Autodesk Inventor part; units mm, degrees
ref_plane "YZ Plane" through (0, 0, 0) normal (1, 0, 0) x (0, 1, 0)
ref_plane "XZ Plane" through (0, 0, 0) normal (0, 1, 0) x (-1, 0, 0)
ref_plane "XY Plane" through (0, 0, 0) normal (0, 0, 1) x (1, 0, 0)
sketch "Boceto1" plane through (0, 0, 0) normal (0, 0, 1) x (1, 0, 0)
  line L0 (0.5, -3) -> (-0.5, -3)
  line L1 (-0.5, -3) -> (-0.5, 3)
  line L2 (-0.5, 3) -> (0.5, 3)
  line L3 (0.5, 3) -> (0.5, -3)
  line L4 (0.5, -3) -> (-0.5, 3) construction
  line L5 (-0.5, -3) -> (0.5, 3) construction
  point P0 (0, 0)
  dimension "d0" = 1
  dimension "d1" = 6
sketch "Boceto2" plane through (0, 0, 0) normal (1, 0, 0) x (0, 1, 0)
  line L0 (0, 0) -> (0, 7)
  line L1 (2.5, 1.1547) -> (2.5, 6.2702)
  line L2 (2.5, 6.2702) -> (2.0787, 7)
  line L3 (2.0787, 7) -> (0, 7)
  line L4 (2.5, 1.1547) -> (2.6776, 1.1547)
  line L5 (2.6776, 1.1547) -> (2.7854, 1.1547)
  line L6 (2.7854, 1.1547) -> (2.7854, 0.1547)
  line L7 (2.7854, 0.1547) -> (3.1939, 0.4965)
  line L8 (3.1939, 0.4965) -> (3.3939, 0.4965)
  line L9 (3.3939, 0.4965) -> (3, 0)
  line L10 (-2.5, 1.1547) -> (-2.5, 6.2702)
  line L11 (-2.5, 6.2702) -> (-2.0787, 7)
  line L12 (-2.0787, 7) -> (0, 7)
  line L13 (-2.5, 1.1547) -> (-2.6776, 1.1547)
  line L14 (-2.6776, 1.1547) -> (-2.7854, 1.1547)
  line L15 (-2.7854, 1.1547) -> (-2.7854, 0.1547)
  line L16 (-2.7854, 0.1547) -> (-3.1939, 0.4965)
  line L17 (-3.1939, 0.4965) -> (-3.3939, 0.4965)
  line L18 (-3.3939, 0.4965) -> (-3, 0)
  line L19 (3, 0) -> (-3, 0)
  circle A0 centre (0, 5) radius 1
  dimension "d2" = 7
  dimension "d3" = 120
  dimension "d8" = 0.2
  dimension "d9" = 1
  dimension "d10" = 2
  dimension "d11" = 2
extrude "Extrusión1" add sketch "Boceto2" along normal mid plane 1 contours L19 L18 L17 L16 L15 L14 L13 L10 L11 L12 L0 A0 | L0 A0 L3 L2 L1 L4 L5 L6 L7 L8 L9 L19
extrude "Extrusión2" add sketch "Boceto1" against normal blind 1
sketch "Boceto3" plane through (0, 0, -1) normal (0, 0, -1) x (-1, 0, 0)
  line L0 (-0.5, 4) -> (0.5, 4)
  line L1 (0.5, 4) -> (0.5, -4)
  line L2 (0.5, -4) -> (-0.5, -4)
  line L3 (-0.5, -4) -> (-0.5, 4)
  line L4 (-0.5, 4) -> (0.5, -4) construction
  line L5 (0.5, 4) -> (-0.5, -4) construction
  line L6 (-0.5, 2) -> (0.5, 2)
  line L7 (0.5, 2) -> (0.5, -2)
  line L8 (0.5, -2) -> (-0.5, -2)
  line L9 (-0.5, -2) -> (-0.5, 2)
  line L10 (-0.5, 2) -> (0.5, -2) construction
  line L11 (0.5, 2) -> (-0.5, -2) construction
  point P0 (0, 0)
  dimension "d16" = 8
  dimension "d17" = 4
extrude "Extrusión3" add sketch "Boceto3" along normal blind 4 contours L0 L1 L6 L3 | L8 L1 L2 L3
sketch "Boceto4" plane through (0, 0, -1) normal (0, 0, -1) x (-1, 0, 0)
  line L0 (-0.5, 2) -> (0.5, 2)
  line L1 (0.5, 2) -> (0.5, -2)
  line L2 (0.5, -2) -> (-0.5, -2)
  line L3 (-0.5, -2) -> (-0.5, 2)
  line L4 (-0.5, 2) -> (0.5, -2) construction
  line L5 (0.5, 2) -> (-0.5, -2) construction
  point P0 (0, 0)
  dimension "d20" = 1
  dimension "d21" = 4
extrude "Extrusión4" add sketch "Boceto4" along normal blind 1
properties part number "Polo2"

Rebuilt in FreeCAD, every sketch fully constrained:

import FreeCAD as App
import Part
import Sketcher
from FreeCAD import Vector
Q = App.Units.Quantity


def add_polygon(sketch, points):
    """Adds a closed chain of lines whose ends are joined by coincident constraints."""
    first, n = sketch.GeometryCount, len(points)
    for a, b in zip(points, points[1:] + points[:1]):
        sketch.addGeometry(Part.LineSegment(App.Vector(*a, 0), App.Vector(*b, 0)), False)
    for i in range(n):
        sketch.addConstraint(Sketcher.Constraint("Coincident", first + i, 2, first + (i + 1) % n, 1))

doc = App.newDocument("Part")
body = doc.addObject("PartDesign::Body", "Body")

sketch1 = body.newObject("Sketcher::SketchObject", "Sketch")
sketch1.AttachmentSupport = (doc.getObject("YZ_Plane"), [""])
sketch1.MapMode = "FlatFace"
add_polygon(sketch1, [(-3, 0), (3, 0), (3.39, 0.5), (3.19, 0.5), (2.79, 0.15), (2.79, 1.15), (2.5, 1.15), (2.5, 6.27), (2.08, 7), (-2.08, 7), (-2.5, 6.27), (-2.5, 1.15), (-2.79, 1.15), (-2.79, 0.15), (-3.19, 0.5), (-3.39, 0.5)])
sketch1.addGeometry(Part.Circle(Vector(0, 5, 0), Vector(0, 0, 1), 1), False)
sketch1.addConstraint(Sketcher.Constraint("Horizontal", 0))
sketch1.addConstraint(Sketcher.Constraint("Horizontal", 2))
sketch1.addConstraint(Sketcher.Constraint("Vertical", 4))
sketch1.addConstraint(Sketcher.Constraint("Horizontal", 5))
sketch1.addConstraint(Sketcher.Constraint("Vertical", 6))
sketch1.addConstraint(Sketcher.Constraint("Horizontal", 8))
sketch1.addConstraint(Sketcher.Constraint("Vertical", 10))
sketch1.addConstraint(Sketcher.Constraint("Horizontal", 11))
sketch1.addConstraint(Sketcher.Constraint("Vertical", 12))
sketch1.addConstraint(Sketcher.Constraint("Horizontal", 14))
sketch1.addConstraint(Sketcher.Constraint("Symmetric", 0, 2, 15, 2, -1, 1))
sketch1.addConstraint(Sketcher.Constraint("Symmetric", 6, 2, 9, 2, -2))
sketch1.addConstraint(Sketcher.Constraint("Symmetric", 4, 2, 11, 2, -2))
sketch1.addConstraint(Sketcher.Constraint("Symmetric", 2, 2, 13, 2, -2))
sketch1.addConstraint(Sketcher.Constraint("PointOnObject", 16, 3, -2))
sketch1.addConstraint(Sketcher.Constraint("Horizontal", 3, 2, 12, 2))
sketch1.addConstraint(Sketcher.Constraint("Equal", 2, 14))
sketch1.addConstraint(Sketcher.Constraint("Equal", 7, 9))
sketch1.addConstraint(Sketcher.Constraint("Diameter", 16, 2.0))
sketch1.addConstraint(Sketcher.Constraint("DistanceY", 4, 1, 4, 2, 1.0))
sketch1.addConstraint(Sketcher.Constraint("DistanceX", 2, 2, 2, 1, 0.2))
sketch1.addConstraint(Sketcher.Constraint("DistanceY", -1, 1, 7, 2, 7.0))
sketch1.addConstraint(Sketcher.Constraint("DistanceY", 16, 3, 7, 2, 2.0))
sketch1.addConstraint(Sketcher.Constraint("DistanceX", 0, 1, 0, 2, 6.0))
sketch1.addConstraint(Sketcher.Constraint("DistanceX", 9, 2, 6, 2, 5.0))
sketch1.addConstraint(Sketcher.Constraint("Angle", 3, Q("-140.08 deg")))
sketch1.addConstraint(Sketcher.Constraint("DistanceX", 5, 2, 5, 1, 0.2854))
sketch1.addConstraint(Sketcher.Constraint("DistanceX", 8, 2, 8, 1, 4.1574))
sketch1.addConstraint(Sketcher.Constraint("DistanceY", 6, 1, 6, 2, 5.1155))
sketch1.addConstraint(Sketcher.Constraint("DistanceX", -1, 1, 1, 2, 3.394))
sketch1.addConstraint(Sketcher.Constraint("Distance", 1, 0.6338))
pad1 = body.newObject("PartDesign::Pad", "Pad")
pad1.Profile = sketch1
pad1.Length = 1
pad1.Midplane = True

sketch2 = body.newObject("Sketcher::SketchObject", "Sketch001")
sketch2.AttachmentSupport = (doc.getObject("XY_Plane"), [""])
sketch2.MapMode = "FlatFace"
add_polygon(sketch2, [(-0.5, -3), (0.5, -3), (0.5, 3), (-0.5, 3)])
sketch2.addConstraint(Sketcher.Constraint("Horizontal", 0))
sketch2.addConstraint(Sketcher.Constraint("Vertical", 1))
sketch2.addConstraint(Sketcher.Constraint("Horizontal", 2))
sketch2.addConstraint(Sketcher.Constraint("Vertical", 3))
sketch2.addConstraint(Sketcher.Constraint("Symmetric", 0, 2, 2, 2, -1, 1))
sketch2.addConstraint(Sketcher.Constraint("DistanceX", 0, 1, 0, 2, 1.0))
sketch2.addConstraint(Sketcher.Constraint("DistanceY", 1, 1, 1, 2, 6.0))
pad2 = body.newObject("PartDesign::Pad", "Pad001")
pad2.Profile = sketch2
pad2.Length = 1
pad2.Reversed = True

sketch3 = body.newObject("Sketcher::SketchObject", "Sketch002")
sketch3.AttachmentSupport = (doc.getObject("XY_Plane"), [""])
sketch3.MapMode = "FlatFace"
sketch3.AttachmentOffset = App.Placement(Vector(0, 0, -1), App.Rotation())
add_polygon(sketch3, [(-0.5, 4), (0.5, 4), (0.5, 2), (-0.5, 2)])
add_polygon(sketch3, [(-0.5, -2), (0.5, -2), (0.5, -4), (-0.5, -4)])
sketch3.addConstraint(Sketcher.Constraint("Horizontal", 0))
sketch3.addConstraint(Sketcher.Constraint("Vertical", 1))
sketch3.addConstraint(Sketcher.Constraint("Horizontal", 2))
sketch3.addConstraint(Sketcher.Constraint("Vertical", 3))
sketch3.addConstraint(Sketcher.Constraint("Horizontal", 4))
sketch3.addConstraint(Sketcher.Constraint("Vertical", 5))
sketch3.addConstraint(Sketcher.Constraint("Horizontal", 6))
sketch3.addConstraint(Sketcher.Constraint("Vertical", 7))
sketch3.addConstraint(Sketcher.Constraint("Symmetric", 2, 2, 4, 2, -1, 1))
sketch3.addConstraint(Sketcher.Constraint("Symmetric", 0, 2, 6, 2, -1, 1))
sketch3.addConstraint(Sketcher.Constraint("Vertical", 1, 2, 4, 2))
sketch3.addConstraint(Sketcher.Constraint("DistanceY", -1, 1, 0, 2, 4.0))
sketch3.addConstraint(Sketcher.Constraint("DistanceY", 4, 2, 1, 2, 4.0))
sketch3.addConstraint(Sketcher.Constraint("DistanceX", 0, 1, 0, 2, 1.0))
pad3 = body.newObject("PartDesign::Pad", "Pad002")
pad3.Profile = sketch3
pad3.Length = 4
pad3.Reversed = True

sketch4 = body.newObject("Sketcher::SketchObject", "Sketch003")
sketch4.AttachmentSupport = (doc.getObject("XY_Plane"), [""])
sketch4.MapMode = "FlatFace"
sketch4.AttachmentOffset = App.Placement(Vector(0, 0, -1), App.Rotation())
add_polygon(sketch4, [(-0.5, 2), (0.5, 2), (0.5, -2), (-0.5, -2)])
sketch4.addConstraint(Sketcher.Constraint("Horizontal", 0))
sketch4.addConstraint(Sketcher.Constraint("Vertical", 1))
sketch4.addConstraint(Sketcher.Constraint("Horizontal", 2))
sketch4.addConstraint(Sketcher.Constraint("Vertical", 3))
sketch4.addConstraint(Sketcher.Constraint("Symmetric", 0, 2, 2, 2, -1, 1))
sketch4.addConstraint(Sketcher.Constraint("DistanceX", 0, 1, 0, 2, 1.0))
sketch4.addConstraint(Sketcher.Constraint("DistanceY", 1, 2, 1, 1, 4.0))
pad4 = body.newObject("PartDesign::Pad", "Pad003")
pad4.Profile = sketch4
pad4.Length = 1
pad4.Reversed = True

doc.recompute()
